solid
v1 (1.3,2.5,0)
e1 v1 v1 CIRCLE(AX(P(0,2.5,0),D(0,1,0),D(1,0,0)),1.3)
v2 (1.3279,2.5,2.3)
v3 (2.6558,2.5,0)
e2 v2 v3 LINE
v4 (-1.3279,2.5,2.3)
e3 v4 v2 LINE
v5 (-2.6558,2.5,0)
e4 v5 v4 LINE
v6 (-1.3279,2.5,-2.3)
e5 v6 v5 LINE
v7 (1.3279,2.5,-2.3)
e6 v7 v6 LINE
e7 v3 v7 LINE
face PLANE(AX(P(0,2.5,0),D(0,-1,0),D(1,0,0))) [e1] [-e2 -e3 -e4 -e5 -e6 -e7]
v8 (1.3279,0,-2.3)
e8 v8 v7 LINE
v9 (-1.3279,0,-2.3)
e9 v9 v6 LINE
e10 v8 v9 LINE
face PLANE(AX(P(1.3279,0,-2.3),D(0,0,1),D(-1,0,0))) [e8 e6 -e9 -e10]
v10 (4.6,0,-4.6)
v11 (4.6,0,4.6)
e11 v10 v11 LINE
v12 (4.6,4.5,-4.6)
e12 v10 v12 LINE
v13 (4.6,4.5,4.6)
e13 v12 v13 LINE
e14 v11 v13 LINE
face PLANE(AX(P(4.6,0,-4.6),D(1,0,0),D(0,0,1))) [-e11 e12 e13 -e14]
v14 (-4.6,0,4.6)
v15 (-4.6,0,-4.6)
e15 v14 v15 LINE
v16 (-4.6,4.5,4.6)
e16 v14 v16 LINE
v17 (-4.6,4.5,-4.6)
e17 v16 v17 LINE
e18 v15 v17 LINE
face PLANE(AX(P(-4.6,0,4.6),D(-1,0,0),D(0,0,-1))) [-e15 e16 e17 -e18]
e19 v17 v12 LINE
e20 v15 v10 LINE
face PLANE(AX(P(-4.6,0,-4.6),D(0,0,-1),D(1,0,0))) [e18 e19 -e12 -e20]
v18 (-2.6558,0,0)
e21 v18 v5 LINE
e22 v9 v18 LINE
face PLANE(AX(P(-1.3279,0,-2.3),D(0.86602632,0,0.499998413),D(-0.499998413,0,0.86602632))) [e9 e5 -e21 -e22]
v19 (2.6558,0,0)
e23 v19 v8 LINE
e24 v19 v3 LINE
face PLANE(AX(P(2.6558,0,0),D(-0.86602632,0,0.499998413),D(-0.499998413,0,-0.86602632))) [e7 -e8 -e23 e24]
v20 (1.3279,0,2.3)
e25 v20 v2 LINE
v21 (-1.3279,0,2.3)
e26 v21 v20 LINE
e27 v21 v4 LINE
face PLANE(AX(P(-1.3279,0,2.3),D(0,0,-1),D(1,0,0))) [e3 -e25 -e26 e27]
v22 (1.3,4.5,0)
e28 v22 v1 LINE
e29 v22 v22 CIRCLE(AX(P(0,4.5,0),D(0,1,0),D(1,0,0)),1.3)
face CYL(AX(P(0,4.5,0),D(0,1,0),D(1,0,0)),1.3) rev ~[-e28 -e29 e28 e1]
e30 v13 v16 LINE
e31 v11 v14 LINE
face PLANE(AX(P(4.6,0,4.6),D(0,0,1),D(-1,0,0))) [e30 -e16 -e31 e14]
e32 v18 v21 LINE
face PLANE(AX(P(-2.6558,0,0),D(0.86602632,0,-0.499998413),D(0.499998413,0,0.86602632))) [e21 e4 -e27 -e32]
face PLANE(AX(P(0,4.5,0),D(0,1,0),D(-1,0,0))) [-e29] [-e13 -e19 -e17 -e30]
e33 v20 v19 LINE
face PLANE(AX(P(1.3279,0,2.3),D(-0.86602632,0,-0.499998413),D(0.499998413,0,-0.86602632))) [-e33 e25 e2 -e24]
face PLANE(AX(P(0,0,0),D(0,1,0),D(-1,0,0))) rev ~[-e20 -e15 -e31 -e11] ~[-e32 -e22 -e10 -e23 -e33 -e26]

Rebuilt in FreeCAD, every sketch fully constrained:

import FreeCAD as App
import Part
import Sketcher

V = App.Vector
Q = App.Units.Quantity

doc = App.newDocument("Part")
params = doc.addObject("Spreadsheet::Sheet", "Params")
for row, (alias, value) in enumerate([
    ("sketch1_width", "9.2 mm"),
    ("pad1_length", "4.5 mm"),
    ("pocket1_length", "2.5 mm"),
    ("sketch3_diameter", "2.6 mm"),
    ("pocket2_length", "2 mm"),
], start=1):
    params.set(f"A{row}", alias)
    params.set(f"B{row}", "=" + value)
    params.setAlias(f"B{row}", alias)

body = doc.addObject("PartDesign::Body", "Body")

# Sketch on XZ plane
sketch1 = body.newObject("Sketcher::SketchObject", "Sketch")
sketch1.AttachmentSupport = (doc.getObject("XZ_Plane"), [""])
sketch1.MapMode = "FlatFace"
sketch1.addGeometry(Part.LineSegment(V(-5, 5, 0), V(5, 5, 0)), False)
sketch1.addGeometry(Part.LineSegment(V(5, 5, 0), V(5, -5, 0)), False)
sketch1.addGeometry(Part.LineSegment(V(5, -5, 0), V(-5, -5, 0)), False)
sketch1.addGeometry(Part.LineSegment(V(-5, -5, 0), V(-5, 5, 0)), False)
sketch1.addConstraint(Sketcher.Constraint("Coincident", 0, 2, 1, 1))
sketch1.addConstraint(Sketcher.Constraint("Coincident", 1, 2, 2, 1))
sketch1.addConstraint(Sketcher.Constraint("Coincident", 2, 2, 3, 1))
sketch1.addConstraint(Sketcher.Constraint("Coincident", 3, 2, 0, 1))
sketch1.addConstraint(Sketcher.Constraint("Horizontal", 0))
sketch1.addConstraint(Sketcher.Constraint("Vertical", 1))
sketch1.addConstraint(Sketcher.Constraint("Horizontal", 2))
sketch1.addConstraint(Sketcher.Constraint("Vertical", 3))
sketch1.addConstraint(Sketcher.Constraint("Symmetric", 0, 2, 2, 2, -1, 1))
sketch1.addConstraint(Sketcher.Constraint("Equal", 2, 1))
sketch1.addConstraint(Sketcher.Constraint("DistanceX", 0, 1, 0, 2, Q("9.2 mm")))
sketch1.setExpression("Constraints[10]", "Params.sketch1_width")
pad1 = body.newObject("PartDesign::Pad", "Pad")
pad1.Profile = sketch1
pad1.setExpression("Length", "Params.pad1_length")
pad1.Reversed = True

# Sketch on XZ plane
sketch2 = body.newObject("Sketcher::SketchObject", "Sketch001")
sketch2.AttachmentSupport = (doc.getObject("XZ_Plane"), [""])
sketch2.MapMode = "FlatFace"
sketch2.addGeometry(Part.LineSegment(V(2.7, 0, 0), V(1.3, 2.3, 0)), False)
sketch2.addGeometry(Part.LineSegment(V(1.3, 2.3, 0), V(-1.3, 2.3, 0)), False)
sketch2.addGeometry(Part.LineSegment(V(-1.3, 2.3, 0), V(-2.7, 0, 0)), False)
sketch2.addGeometry(Part.LineSegment(V(-2.7, 0, 0), V(-1.3, -2.3, 0)), False)
sketch2.addGeometry(Part.LineSegment(V(-1.3, -2.3, 0), V(1.3, -2.3, 0)), False)
sketch2.addGeometry(Part.LineSegment(V(1.3, -2.3, 0), V(2.7, 0, 0)), False)
sketch2.addConstraint(Sketcher.Constraint("Coincident", 0, 2, 1, 1))
sketch2.addConstraint(Sketcher.Constraint("Coincident", 1, 2, 2, 1))
sketch2.addConstraint(Sketcher.Constraint("Coincident", 2, 2, 3, 1))
sketch2.addConstraint(Sketcher.Constraint("Coincident", 3, 2, 4, 1))
sketch2.addConstraint(Sketcher.Constraint("Coincident", 4, 2, 5, 1))
sketch2.addConstraint(Sketcher.Constraint("Coincident", 5, 2, 0, 1))
sketch2.addConstraint(Sketcher.Constraint("Horizontal", 1))
sketch2.addConstraint(Sketcher.Constraint("Horizontal", 4))
sketch2.addConstraint(Sketcher.Constraint("Symmetric", 0, 2, 3, 2, -1, 1))
sketch2.addConstraint(Sketcher.Constraint("Symmetric", 2, 2, 5, 2, -1, 1))
sketch2.addConstraint(Sketcher.Constraint("PointOnObject", 2, 2, -1))
sketch2.addConstraint(Sketcher.Constraint("Parallel", 2, 5))
sketch2.addConstraint(Sketcher.Constraint("Vertical", 1, 2, 3, 2))
sketch2.addConstraint(Sketcher.Constraint("DistanceY", 3, 2, 1, 2, Q("4.6 mm")))
sketch2.addConstraint(Sketcher.Constraint("Angle", 0, Q("120 deg")))
sketch2.addConstraint(Sketcher.Constraint("DistanceX", 1, 2, 1, 1, Q("2.6558 mm")))
pocket1 = body.newObject("PartDesign::Pocket", "Pocket")
pocket1.Profile = sketch2
pocket1.setExpression("Length", "Params.pocket1_length")

# Sketch on XZ plane
sketch3 = body.newObject("Sketcher::SketchObject", "Sketch002")
sketch3.AttachmentSupport = (doc.getObject("XZ_Plane"), [""])
sketch3.MapMode = "FlatFace"
sketch3.AttachmentOffset = App.Placement(V(0, 0, -4.5), App.Rotation())
sketch3.addGeometry(Part.Circle(V(0, 0, 0), V(0, 0, 1), 1.3), False)
sketch3.addConstraint(Sketcher.Constraint("Coincident", 0, 3, -1, 1))
sketch3.addConstraint(Sketcher.Constraint("Diameter", 0, Q("2.6 mm")))
sketch3.setExpression("Constraints[1]", "Params.sketch3_diameter")
pocket2 = body.newObject("PartDesign::Pocket", "Pocket001")
pocket2.Profile = sketch3
pocket2.setExpression("Length", "Params.pocket2_length")
pocket2.Reversed = True

doc.recompute()
